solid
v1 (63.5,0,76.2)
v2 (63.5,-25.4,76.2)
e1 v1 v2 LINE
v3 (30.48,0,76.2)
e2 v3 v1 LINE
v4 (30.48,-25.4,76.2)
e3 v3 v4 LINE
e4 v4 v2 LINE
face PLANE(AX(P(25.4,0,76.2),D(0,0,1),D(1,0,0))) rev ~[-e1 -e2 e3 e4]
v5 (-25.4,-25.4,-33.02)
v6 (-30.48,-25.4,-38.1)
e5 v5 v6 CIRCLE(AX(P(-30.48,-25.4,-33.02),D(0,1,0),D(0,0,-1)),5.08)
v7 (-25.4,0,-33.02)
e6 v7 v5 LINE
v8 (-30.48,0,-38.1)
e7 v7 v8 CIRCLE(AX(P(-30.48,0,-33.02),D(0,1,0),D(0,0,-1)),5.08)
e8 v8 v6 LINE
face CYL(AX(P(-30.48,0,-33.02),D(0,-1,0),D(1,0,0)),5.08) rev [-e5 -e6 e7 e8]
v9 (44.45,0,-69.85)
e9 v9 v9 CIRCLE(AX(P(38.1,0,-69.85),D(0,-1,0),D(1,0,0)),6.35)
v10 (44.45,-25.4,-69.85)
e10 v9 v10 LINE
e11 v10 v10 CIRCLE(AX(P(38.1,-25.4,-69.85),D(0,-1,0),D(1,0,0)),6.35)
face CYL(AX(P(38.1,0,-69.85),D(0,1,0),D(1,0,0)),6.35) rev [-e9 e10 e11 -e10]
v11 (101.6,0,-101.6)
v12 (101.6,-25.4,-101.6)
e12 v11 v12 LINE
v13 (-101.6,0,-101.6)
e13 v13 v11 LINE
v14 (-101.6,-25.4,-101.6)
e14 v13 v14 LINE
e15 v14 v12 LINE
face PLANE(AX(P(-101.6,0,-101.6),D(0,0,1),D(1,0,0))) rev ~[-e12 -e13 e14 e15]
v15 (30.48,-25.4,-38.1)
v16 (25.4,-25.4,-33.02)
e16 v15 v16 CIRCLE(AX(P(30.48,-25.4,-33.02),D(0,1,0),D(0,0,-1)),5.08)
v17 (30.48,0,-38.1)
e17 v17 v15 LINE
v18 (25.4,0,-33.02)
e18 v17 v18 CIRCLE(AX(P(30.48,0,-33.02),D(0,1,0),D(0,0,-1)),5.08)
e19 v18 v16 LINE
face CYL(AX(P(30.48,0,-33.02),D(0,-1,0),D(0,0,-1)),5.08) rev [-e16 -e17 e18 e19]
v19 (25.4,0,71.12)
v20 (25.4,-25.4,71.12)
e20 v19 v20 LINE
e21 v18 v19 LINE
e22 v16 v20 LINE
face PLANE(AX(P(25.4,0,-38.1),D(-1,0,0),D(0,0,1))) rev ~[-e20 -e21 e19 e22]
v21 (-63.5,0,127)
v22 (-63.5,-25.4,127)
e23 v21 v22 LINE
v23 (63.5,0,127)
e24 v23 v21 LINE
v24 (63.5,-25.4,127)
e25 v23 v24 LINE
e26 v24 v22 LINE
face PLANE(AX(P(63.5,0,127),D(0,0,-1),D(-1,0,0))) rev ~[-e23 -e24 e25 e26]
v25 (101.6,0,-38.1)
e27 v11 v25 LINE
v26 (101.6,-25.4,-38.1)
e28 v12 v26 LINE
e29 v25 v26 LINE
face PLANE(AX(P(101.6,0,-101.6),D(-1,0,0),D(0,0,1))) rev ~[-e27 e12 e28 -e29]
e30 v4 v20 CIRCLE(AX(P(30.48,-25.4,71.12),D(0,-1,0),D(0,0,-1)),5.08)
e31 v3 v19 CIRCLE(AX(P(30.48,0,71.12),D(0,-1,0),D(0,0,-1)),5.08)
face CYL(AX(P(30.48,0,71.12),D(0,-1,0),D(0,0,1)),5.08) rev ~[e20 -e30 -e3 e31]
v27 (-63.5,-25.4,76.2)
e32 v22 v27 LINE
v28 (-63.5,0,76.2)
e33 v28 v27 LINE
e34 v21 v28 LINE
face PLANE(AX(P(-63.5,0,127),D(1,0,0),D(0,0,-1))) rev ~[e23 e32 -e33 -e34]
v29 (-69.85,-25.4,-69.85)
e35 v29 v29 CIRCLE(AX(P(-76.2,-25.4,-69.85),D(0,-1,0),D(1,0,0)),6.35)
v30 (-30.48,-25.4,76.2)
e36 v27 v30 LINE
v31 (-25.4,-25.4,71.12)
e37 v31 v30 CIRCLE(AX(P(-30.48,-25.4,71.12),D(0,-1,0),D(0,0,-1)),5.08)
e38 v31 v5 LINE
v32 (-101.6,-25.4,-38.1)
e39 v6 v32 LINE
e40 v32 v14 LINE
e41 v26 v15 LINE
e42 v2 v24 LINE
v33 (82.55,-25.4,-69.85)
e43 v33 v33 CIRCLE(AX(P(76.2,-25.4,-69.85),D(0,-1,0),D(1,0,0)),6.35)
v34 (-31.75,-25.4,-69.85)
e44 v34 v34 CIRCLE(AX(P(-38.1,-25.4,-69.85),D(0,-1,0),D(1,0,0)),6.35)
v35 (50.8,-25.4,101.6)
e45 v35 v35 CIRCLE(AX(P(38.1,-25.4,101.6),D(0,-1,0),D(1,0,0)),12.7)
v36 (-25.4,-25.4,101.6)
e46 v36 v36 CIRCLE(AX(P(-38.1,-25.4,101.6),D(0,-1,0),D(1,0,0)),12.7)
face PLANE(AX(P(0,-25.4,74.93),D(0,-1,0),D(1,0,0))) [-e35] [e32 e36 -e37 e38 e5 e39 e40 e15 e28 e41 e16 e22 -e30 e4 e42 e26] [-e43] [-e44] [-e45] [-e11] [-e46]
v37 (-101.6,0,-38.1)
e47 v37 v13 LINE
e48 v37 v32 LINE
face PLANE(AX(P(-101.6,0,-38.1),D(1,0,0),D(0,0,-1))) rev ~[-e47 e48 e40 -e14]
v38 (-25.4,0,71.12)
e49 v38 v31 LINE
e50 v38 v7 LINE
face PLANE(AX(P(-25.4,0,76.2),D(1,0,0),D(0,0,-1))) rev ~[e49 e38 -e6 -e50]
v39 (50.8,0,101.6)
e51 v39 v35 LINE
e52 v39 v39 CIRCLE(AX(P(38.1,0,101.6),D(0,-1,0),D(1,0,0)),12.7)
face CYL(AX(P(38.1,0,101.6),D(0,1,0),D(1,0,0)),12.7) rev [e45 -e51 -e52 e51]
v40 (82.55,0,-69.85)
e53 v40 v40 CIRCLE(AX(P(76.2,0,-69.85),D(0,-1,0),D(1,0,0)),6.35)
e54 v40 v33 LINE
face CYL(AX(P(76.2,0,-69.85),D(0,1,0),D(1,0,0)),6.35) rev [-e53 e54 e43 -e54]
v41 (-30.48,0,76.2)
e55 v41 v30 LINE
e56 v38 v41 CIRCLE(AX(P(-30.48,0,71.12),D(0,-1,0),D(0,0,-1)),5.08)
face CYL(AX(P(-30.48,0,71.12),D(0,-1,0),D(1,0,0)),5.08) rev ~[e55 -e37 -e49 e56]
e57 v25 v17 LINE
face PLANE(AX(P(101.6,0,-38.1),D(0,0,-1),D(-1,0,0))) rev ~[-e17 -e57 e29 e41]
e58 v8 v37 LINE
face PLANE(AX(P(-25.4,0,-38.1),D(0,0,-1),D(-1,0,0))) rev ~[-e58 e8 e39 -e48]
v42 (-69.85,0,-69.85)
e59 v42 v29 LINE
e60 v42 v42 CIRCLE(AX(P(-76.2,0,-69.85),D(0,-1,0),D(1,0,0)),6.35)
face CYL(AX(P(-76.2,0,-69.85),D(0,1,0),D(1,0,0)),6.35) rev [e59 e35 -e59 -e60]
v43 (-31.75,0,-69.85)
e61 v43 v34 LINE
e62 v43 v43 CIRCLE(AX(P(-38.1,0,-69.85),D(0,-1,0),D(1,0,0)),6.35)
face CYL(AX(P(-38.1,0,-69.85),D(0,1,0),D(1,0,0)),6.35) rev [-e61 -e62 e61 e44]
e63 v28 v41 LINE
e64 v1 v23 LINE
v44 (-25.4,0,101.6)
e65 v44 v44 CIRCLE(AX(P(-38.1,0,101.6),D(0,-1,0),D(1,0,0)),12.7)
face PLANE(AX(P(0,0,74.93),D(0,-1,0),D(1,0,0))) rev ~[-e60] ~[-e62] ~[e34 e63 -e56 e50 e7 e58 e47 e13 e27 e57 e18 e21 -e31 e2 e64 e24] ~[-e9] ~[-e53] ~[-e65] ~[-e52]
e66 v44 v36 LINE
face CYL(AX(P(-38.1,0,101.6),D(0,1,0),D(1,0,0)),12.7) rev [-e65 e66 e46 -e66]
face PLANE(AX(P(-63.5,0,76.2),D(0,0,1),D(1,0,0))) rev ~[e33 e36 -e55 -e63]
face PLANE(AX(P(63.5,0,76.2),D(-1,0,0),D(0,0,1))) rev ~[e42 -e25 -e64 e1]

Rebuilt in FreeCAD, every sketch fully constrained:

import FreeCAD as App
import Part
import Sketcher
from FreeCAD import Vector
Q = App.Units.Quantity


def edges_at(feature, points):
    """Names of the edges that pass closest to the given points."""
    edges = feature.Shape.Edges
    near = lambda p: min(range(len(edges)), key=lambda i: edges[i].distToShape(Part.Vertex(*p))[0])
    return sorted({f"Edge{near(p) + 1}" for p in points})

doc = App.newDocument("Part")
body = doc.addObject("PartDesign::Body", "Body")

# Sketch on XZ plane
sketch1 = body.newObject("Sketcher::SketchObject", "Sketch")
sketch1.AttachmentSupport = (doc.getObject("XZ_Plane"), [""])
sketch1.MapMode = "FlatFace"
sketch1.addGeometry([
    Part.LineSegment(Vector(-25, 76, 0), Vector(-25, -38, 0)),  # 0
    Part.LineSegment(Vector(-25, -38, 0), Vector(-102, -38, 0)),  # 1
    Part.LineSegment(Vector(-102, -38, 0), Vector(-102, -102, 0)),  # 2
    Part.LineSegment(Vector(-102, -102, 0), Vector(102, -102, 0)),  # 3
    Part.LineSegment(Vector(102, -102, 0), Vector(102, -38, 0)),  # 4
    Part.LineSegment(Vector(102, -38, 0), Vector(25, -38, 0)),  # 5
    Part.LineSegment(Vector(25, -38, 0), Vector(25, 76, 0)),  # 6
    Part.LineSegment(Vector(25, 76, 0), Vector(64, 76, 0)),  # 7
    Part.LineSegment(Vector(64, 76, 0), Vector(64, 127, 0)),  # 8
    Part.LineSegment(Vector(64, 127, 0), Vector(-64, 127, 0)),  # 9
    Part.LineSegment(Vector(-64, 127, 0), Vector(-64, 76, 0)),  # 10
    Part.LineSegment(Vector(-64, 76, 0), Vector(-25, 76, 0)),  # 11
    Part.Circle(Vector(-76, -70, 0), Vector(0, 0, 1), 6),  # 12
    Part.Circle(Vector(-38, -70, 0), Vector(0, 0, 1), 6),  # 13
    Part.Circle(Vector(38, -70, 0), Vector(0, 0, 1), 6),  # 14
    Part.Circle(Vector(76, -70, 0), Vector(0, 0, 1), 6),  # 15
    Part.Circle(Vector(-38, 102, 0), Vector(0, 0, 1), 13),  # 16
    Part.Circle(Vector(38, 102, 0), Vector(0, 0, 1), 13),  # 17
], False)
sketch1.addConstraint([
    Sketcher.Constraint("Coincident", 0, 2, 1, 1),
    Sketcher.Constraint("Coincident", 1, 2, 2, 1),
    Sketcher.Constraint("Coincident", 2, 2, 3, 1),
    Sketcher.Constraint("Coincident", 3, 2, 4, 1),
    Sketcher.Constraint("Coincident", 4, 2, 5, 1),
    Sketcher.Constraint("Coincident", 5, 2, 6, 1),
    Sketcher.Constraint("Coincident", 6, 2, 7, 1),
    Sketcher.Constraint("Coincident", 7, 2, 8, 1),
    Sketcher.Constraint("Coincident", 8, 2, 9, 1),
    Sketcher.Constraint("Coincident", 9, 2, 10, 1),
    Sketcher.Constraint("Coincident", 10, 2, 11, 1),
    Sketcher.Constraint("Coincident", 11, 2, 0, 1),
    Sketcher.Constraint("Vertical", 0),
    Sketcher.Constraint("Horizontal", 1),
    Sketcher.Constraint("Vertical", 2),
    Sketcher.Constraint("Horizontal", 3),
    Sketcher.Constraint("Vertical", 4),
    Sketcher.Constraint("Horizontal", 5),
    Sketcher.Constraint("Vertical", 6),
    Sketcher.Constraint("Horizontal", 7),
    Sketcher.Constraint("Vertical", 8),
    Sketcher.Constraint("Horizontal", 9),
    Sketcher.Constraint("Vertical", 10),
    Sketcher.Constraint("Horizontal", 11),
    Sketcher.Constraint("Equal", 12, 13),
    Sketcher.Constraint("Equal", 13, 14),
    Sketcher.Constraint("Equal", 14, 15),
    Sketcher.Constraint("Equal", 16, 17),
    Sketcher.Constraint("Symmetric", 13, 3, 14, 3, -2),
    Sketcher.Constraint("Symmetric", 12, 3, 15, 3, -2),
    Sketcher.Constraint("Symmetric", 16, 3, 17, 3, -2),
    Sketcher.Constraint("Symmetric", 1, 2, 4, 2, -2),
    Sketcher.Constraint("Symmetric", 7, 2, 10, 2, -2),
    Sketcher.Constraint("Horizontal", 12, 3, 13, 3),
    Sketcher.Constraint("Vertical", 13, 3, 16, 3),
    Sketcher.Constraint("Equal", 1, 5),
    Sketcher.Constraint("Diameter", 16, Q("1 in")),
    Sketcher.Constraint("Diameter", 12, Q("0.5 in")),
    Sketcher.Constraint("DistanceX", 1, 2, 1, 1, Q("3 in")),
    Sketcher.Constraint("DistanceX", 3, 1, 3, 2, Q("8 in")),
    Sketcher.Constraint("DistanceX", 9, 2, 9, 1, Q("5 in")),
    Sketcher.Constraint("DistanceY", 8, 1, 8, 2, Q("2 in")),
    Sketcher.Constraint("DistanceY", 0, 2, 0, 1, Q("4.5 in")),
    Sketcher.Constraint("DistanceY", 2, 2, 2, 1, Q("2.5 in")),
    Sketcher.Constraint("DistanceX", 12, 3, -1, 1, Q("3 in")),
    Sketcher.Constraint("DistanceY", -1, 1, 16, 3, Q("4 in")),
    Sketcher.Constraint("DistanceY", 2, 2, -1, 1, Q("4 in")),
    Sketcher.Constraint("DistanceX", 13, 3, 14, 3, Q("3 in")),
    Sketcher.Constraint("DistanceY", 12, 3, -1, 1, Q("2.75 in")),
])
pad1 = body.newObject("PartDesign::Pad", "Pad")
pad1.Profile = sketch1
pad1.Length = Q("1 in")
doc.recompute()

fillet = body.newObject("PartDesign::Fillet", "Fillet")
fillet.Base = (pad1, edges_at(pad1, [
    (-25.4, -12.7, 76.2),
    (-25.4, -12.7, -38.1),
    (25.4, -12.7, -38.1),
    (25.4, -12.7, 76.2),
]))
fillet.Radius = Q("0.2 in")

doc.recompute()
